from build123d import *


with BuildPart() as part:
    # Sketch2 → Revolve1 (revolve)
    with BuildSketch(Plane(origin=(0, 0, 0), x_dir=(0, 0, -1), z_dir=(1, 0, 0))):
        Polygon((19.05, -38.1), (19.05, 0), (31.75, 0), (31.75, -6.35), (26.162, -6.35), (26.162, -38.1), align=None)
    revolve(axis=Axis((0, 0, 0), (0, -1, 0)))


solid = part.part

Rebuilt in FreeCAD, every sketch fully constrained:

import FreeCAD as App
import Part
import Sketcher
Q = App.Units.Quantity

doc = App.newDocument("Part")
body = doc.addObject("PartDesign::Body", "Body")

# Sketch on YZ plane
sketch1 = body.newObject("Sketcher::SketchObject", "Sketch")
sketch1.AttachmentSupport = (doc.getObject("YZ_Plane"), [""])
sketch1.MapMode = "FlatFace"
sketch1.addGeometry(Part.LineSegment(App.Vector(0, -19.05, 0), App.Vector(-38.1, -19.05, 0)), False)
sketch1.addGeometry(Part.LineSegment(App.Vector(-38.1, -19.05, 0), App.Vector(-38.1, -26.162, 0)), False)
sketch1.addGeometry(Part.LineSegment(App.Vector(-38.1, -26.162, 0), App.Vector(-6.35, -26.162, 0)), False)
sketch1.addGeometry(Part.LineSegment(App.Vector(-6.35, -26.162, 0), App.Vector(-6.35, -31.75, 0)), False)
sketch1.addGeometry(Part.LineSegment(App.Vector(-6.35, -31.75, 0), App.Vector(0, -31.75, 0)), False)
sketch1.addGeometry(Part.LineSegment(App.Vector(0, -31.75, 0), App.Vector(0, -19.05, 0)), False)
sketch1.addConstraint(Sketcher.Constraint("Coincident", 0, 2, 1, 1))
sketch1.addConstraint(Sketcher.Constraint("Coincident", 1, 2, 2, 1))
sketch1.addConstraint(Sketcher.Constraint("Coincident", 2, 2, 3, 1))
sketch1.addConstraint(Sketcher.Constraint("Coincident", 3, 2, 4, 1))
sketch1.addConstraint(Sketcher.Constraint("Coincident", 4, 2, 5, 1))
sketch1.addConstraint(Sketcher.Constraint("Coincident", 5, 2, 0, 1))
sketch1.addConstraint(Sketcher.Constraint("Horizontal", 0))
sketch1.addConstraint(Sketcher.Constraint("Vertical", 1))
sketch1.addConstraint(Sketcher.Constraint("Horizontal", 2))
sketch1.addConstraint(Sketcher.Constraint("Vertical", 3))
sketch1.addConstraint(Sketcher.Constraint("Horizontal", 4))
sketch1.addConstraint(Sketcher.Constraint("Vertical", 5))
sketch1.addConstraint(Sketcher.Constraint("PointOnObject", 4, 2, -2))
sketch1.addConstraint(Sketcher.Constraint("DistanceX", 0, 2, 0, 1, Q("1.5 in")))
sketch1.addConstraint(Sketcher.Constraint("DistanceY", 5, 1, 5, 2, Q("0.5 in")))
sketch1.addConstraint(Sketcher.Constraint("DistanceX", 2, 1, 2, 2, Q("1.25 in")))
sketch1.addConstraint(Sketcher.Constraint("DistanceY", 1, 2, 1, 1, Q("0.28 in")))
sketch1.addConstraint(Sketcher.Constraint("DistanceY", 0, 2, -1, 1, Q("0.75 in")))
revolution = body.newObject("PartDesign::Revolution", "Revolution")
revolution.Profile = sketch1
revolution.ReferenceAxis = (sketch1, ["H_Axis"])
revolution.Angle = 360

doc.recompute()
